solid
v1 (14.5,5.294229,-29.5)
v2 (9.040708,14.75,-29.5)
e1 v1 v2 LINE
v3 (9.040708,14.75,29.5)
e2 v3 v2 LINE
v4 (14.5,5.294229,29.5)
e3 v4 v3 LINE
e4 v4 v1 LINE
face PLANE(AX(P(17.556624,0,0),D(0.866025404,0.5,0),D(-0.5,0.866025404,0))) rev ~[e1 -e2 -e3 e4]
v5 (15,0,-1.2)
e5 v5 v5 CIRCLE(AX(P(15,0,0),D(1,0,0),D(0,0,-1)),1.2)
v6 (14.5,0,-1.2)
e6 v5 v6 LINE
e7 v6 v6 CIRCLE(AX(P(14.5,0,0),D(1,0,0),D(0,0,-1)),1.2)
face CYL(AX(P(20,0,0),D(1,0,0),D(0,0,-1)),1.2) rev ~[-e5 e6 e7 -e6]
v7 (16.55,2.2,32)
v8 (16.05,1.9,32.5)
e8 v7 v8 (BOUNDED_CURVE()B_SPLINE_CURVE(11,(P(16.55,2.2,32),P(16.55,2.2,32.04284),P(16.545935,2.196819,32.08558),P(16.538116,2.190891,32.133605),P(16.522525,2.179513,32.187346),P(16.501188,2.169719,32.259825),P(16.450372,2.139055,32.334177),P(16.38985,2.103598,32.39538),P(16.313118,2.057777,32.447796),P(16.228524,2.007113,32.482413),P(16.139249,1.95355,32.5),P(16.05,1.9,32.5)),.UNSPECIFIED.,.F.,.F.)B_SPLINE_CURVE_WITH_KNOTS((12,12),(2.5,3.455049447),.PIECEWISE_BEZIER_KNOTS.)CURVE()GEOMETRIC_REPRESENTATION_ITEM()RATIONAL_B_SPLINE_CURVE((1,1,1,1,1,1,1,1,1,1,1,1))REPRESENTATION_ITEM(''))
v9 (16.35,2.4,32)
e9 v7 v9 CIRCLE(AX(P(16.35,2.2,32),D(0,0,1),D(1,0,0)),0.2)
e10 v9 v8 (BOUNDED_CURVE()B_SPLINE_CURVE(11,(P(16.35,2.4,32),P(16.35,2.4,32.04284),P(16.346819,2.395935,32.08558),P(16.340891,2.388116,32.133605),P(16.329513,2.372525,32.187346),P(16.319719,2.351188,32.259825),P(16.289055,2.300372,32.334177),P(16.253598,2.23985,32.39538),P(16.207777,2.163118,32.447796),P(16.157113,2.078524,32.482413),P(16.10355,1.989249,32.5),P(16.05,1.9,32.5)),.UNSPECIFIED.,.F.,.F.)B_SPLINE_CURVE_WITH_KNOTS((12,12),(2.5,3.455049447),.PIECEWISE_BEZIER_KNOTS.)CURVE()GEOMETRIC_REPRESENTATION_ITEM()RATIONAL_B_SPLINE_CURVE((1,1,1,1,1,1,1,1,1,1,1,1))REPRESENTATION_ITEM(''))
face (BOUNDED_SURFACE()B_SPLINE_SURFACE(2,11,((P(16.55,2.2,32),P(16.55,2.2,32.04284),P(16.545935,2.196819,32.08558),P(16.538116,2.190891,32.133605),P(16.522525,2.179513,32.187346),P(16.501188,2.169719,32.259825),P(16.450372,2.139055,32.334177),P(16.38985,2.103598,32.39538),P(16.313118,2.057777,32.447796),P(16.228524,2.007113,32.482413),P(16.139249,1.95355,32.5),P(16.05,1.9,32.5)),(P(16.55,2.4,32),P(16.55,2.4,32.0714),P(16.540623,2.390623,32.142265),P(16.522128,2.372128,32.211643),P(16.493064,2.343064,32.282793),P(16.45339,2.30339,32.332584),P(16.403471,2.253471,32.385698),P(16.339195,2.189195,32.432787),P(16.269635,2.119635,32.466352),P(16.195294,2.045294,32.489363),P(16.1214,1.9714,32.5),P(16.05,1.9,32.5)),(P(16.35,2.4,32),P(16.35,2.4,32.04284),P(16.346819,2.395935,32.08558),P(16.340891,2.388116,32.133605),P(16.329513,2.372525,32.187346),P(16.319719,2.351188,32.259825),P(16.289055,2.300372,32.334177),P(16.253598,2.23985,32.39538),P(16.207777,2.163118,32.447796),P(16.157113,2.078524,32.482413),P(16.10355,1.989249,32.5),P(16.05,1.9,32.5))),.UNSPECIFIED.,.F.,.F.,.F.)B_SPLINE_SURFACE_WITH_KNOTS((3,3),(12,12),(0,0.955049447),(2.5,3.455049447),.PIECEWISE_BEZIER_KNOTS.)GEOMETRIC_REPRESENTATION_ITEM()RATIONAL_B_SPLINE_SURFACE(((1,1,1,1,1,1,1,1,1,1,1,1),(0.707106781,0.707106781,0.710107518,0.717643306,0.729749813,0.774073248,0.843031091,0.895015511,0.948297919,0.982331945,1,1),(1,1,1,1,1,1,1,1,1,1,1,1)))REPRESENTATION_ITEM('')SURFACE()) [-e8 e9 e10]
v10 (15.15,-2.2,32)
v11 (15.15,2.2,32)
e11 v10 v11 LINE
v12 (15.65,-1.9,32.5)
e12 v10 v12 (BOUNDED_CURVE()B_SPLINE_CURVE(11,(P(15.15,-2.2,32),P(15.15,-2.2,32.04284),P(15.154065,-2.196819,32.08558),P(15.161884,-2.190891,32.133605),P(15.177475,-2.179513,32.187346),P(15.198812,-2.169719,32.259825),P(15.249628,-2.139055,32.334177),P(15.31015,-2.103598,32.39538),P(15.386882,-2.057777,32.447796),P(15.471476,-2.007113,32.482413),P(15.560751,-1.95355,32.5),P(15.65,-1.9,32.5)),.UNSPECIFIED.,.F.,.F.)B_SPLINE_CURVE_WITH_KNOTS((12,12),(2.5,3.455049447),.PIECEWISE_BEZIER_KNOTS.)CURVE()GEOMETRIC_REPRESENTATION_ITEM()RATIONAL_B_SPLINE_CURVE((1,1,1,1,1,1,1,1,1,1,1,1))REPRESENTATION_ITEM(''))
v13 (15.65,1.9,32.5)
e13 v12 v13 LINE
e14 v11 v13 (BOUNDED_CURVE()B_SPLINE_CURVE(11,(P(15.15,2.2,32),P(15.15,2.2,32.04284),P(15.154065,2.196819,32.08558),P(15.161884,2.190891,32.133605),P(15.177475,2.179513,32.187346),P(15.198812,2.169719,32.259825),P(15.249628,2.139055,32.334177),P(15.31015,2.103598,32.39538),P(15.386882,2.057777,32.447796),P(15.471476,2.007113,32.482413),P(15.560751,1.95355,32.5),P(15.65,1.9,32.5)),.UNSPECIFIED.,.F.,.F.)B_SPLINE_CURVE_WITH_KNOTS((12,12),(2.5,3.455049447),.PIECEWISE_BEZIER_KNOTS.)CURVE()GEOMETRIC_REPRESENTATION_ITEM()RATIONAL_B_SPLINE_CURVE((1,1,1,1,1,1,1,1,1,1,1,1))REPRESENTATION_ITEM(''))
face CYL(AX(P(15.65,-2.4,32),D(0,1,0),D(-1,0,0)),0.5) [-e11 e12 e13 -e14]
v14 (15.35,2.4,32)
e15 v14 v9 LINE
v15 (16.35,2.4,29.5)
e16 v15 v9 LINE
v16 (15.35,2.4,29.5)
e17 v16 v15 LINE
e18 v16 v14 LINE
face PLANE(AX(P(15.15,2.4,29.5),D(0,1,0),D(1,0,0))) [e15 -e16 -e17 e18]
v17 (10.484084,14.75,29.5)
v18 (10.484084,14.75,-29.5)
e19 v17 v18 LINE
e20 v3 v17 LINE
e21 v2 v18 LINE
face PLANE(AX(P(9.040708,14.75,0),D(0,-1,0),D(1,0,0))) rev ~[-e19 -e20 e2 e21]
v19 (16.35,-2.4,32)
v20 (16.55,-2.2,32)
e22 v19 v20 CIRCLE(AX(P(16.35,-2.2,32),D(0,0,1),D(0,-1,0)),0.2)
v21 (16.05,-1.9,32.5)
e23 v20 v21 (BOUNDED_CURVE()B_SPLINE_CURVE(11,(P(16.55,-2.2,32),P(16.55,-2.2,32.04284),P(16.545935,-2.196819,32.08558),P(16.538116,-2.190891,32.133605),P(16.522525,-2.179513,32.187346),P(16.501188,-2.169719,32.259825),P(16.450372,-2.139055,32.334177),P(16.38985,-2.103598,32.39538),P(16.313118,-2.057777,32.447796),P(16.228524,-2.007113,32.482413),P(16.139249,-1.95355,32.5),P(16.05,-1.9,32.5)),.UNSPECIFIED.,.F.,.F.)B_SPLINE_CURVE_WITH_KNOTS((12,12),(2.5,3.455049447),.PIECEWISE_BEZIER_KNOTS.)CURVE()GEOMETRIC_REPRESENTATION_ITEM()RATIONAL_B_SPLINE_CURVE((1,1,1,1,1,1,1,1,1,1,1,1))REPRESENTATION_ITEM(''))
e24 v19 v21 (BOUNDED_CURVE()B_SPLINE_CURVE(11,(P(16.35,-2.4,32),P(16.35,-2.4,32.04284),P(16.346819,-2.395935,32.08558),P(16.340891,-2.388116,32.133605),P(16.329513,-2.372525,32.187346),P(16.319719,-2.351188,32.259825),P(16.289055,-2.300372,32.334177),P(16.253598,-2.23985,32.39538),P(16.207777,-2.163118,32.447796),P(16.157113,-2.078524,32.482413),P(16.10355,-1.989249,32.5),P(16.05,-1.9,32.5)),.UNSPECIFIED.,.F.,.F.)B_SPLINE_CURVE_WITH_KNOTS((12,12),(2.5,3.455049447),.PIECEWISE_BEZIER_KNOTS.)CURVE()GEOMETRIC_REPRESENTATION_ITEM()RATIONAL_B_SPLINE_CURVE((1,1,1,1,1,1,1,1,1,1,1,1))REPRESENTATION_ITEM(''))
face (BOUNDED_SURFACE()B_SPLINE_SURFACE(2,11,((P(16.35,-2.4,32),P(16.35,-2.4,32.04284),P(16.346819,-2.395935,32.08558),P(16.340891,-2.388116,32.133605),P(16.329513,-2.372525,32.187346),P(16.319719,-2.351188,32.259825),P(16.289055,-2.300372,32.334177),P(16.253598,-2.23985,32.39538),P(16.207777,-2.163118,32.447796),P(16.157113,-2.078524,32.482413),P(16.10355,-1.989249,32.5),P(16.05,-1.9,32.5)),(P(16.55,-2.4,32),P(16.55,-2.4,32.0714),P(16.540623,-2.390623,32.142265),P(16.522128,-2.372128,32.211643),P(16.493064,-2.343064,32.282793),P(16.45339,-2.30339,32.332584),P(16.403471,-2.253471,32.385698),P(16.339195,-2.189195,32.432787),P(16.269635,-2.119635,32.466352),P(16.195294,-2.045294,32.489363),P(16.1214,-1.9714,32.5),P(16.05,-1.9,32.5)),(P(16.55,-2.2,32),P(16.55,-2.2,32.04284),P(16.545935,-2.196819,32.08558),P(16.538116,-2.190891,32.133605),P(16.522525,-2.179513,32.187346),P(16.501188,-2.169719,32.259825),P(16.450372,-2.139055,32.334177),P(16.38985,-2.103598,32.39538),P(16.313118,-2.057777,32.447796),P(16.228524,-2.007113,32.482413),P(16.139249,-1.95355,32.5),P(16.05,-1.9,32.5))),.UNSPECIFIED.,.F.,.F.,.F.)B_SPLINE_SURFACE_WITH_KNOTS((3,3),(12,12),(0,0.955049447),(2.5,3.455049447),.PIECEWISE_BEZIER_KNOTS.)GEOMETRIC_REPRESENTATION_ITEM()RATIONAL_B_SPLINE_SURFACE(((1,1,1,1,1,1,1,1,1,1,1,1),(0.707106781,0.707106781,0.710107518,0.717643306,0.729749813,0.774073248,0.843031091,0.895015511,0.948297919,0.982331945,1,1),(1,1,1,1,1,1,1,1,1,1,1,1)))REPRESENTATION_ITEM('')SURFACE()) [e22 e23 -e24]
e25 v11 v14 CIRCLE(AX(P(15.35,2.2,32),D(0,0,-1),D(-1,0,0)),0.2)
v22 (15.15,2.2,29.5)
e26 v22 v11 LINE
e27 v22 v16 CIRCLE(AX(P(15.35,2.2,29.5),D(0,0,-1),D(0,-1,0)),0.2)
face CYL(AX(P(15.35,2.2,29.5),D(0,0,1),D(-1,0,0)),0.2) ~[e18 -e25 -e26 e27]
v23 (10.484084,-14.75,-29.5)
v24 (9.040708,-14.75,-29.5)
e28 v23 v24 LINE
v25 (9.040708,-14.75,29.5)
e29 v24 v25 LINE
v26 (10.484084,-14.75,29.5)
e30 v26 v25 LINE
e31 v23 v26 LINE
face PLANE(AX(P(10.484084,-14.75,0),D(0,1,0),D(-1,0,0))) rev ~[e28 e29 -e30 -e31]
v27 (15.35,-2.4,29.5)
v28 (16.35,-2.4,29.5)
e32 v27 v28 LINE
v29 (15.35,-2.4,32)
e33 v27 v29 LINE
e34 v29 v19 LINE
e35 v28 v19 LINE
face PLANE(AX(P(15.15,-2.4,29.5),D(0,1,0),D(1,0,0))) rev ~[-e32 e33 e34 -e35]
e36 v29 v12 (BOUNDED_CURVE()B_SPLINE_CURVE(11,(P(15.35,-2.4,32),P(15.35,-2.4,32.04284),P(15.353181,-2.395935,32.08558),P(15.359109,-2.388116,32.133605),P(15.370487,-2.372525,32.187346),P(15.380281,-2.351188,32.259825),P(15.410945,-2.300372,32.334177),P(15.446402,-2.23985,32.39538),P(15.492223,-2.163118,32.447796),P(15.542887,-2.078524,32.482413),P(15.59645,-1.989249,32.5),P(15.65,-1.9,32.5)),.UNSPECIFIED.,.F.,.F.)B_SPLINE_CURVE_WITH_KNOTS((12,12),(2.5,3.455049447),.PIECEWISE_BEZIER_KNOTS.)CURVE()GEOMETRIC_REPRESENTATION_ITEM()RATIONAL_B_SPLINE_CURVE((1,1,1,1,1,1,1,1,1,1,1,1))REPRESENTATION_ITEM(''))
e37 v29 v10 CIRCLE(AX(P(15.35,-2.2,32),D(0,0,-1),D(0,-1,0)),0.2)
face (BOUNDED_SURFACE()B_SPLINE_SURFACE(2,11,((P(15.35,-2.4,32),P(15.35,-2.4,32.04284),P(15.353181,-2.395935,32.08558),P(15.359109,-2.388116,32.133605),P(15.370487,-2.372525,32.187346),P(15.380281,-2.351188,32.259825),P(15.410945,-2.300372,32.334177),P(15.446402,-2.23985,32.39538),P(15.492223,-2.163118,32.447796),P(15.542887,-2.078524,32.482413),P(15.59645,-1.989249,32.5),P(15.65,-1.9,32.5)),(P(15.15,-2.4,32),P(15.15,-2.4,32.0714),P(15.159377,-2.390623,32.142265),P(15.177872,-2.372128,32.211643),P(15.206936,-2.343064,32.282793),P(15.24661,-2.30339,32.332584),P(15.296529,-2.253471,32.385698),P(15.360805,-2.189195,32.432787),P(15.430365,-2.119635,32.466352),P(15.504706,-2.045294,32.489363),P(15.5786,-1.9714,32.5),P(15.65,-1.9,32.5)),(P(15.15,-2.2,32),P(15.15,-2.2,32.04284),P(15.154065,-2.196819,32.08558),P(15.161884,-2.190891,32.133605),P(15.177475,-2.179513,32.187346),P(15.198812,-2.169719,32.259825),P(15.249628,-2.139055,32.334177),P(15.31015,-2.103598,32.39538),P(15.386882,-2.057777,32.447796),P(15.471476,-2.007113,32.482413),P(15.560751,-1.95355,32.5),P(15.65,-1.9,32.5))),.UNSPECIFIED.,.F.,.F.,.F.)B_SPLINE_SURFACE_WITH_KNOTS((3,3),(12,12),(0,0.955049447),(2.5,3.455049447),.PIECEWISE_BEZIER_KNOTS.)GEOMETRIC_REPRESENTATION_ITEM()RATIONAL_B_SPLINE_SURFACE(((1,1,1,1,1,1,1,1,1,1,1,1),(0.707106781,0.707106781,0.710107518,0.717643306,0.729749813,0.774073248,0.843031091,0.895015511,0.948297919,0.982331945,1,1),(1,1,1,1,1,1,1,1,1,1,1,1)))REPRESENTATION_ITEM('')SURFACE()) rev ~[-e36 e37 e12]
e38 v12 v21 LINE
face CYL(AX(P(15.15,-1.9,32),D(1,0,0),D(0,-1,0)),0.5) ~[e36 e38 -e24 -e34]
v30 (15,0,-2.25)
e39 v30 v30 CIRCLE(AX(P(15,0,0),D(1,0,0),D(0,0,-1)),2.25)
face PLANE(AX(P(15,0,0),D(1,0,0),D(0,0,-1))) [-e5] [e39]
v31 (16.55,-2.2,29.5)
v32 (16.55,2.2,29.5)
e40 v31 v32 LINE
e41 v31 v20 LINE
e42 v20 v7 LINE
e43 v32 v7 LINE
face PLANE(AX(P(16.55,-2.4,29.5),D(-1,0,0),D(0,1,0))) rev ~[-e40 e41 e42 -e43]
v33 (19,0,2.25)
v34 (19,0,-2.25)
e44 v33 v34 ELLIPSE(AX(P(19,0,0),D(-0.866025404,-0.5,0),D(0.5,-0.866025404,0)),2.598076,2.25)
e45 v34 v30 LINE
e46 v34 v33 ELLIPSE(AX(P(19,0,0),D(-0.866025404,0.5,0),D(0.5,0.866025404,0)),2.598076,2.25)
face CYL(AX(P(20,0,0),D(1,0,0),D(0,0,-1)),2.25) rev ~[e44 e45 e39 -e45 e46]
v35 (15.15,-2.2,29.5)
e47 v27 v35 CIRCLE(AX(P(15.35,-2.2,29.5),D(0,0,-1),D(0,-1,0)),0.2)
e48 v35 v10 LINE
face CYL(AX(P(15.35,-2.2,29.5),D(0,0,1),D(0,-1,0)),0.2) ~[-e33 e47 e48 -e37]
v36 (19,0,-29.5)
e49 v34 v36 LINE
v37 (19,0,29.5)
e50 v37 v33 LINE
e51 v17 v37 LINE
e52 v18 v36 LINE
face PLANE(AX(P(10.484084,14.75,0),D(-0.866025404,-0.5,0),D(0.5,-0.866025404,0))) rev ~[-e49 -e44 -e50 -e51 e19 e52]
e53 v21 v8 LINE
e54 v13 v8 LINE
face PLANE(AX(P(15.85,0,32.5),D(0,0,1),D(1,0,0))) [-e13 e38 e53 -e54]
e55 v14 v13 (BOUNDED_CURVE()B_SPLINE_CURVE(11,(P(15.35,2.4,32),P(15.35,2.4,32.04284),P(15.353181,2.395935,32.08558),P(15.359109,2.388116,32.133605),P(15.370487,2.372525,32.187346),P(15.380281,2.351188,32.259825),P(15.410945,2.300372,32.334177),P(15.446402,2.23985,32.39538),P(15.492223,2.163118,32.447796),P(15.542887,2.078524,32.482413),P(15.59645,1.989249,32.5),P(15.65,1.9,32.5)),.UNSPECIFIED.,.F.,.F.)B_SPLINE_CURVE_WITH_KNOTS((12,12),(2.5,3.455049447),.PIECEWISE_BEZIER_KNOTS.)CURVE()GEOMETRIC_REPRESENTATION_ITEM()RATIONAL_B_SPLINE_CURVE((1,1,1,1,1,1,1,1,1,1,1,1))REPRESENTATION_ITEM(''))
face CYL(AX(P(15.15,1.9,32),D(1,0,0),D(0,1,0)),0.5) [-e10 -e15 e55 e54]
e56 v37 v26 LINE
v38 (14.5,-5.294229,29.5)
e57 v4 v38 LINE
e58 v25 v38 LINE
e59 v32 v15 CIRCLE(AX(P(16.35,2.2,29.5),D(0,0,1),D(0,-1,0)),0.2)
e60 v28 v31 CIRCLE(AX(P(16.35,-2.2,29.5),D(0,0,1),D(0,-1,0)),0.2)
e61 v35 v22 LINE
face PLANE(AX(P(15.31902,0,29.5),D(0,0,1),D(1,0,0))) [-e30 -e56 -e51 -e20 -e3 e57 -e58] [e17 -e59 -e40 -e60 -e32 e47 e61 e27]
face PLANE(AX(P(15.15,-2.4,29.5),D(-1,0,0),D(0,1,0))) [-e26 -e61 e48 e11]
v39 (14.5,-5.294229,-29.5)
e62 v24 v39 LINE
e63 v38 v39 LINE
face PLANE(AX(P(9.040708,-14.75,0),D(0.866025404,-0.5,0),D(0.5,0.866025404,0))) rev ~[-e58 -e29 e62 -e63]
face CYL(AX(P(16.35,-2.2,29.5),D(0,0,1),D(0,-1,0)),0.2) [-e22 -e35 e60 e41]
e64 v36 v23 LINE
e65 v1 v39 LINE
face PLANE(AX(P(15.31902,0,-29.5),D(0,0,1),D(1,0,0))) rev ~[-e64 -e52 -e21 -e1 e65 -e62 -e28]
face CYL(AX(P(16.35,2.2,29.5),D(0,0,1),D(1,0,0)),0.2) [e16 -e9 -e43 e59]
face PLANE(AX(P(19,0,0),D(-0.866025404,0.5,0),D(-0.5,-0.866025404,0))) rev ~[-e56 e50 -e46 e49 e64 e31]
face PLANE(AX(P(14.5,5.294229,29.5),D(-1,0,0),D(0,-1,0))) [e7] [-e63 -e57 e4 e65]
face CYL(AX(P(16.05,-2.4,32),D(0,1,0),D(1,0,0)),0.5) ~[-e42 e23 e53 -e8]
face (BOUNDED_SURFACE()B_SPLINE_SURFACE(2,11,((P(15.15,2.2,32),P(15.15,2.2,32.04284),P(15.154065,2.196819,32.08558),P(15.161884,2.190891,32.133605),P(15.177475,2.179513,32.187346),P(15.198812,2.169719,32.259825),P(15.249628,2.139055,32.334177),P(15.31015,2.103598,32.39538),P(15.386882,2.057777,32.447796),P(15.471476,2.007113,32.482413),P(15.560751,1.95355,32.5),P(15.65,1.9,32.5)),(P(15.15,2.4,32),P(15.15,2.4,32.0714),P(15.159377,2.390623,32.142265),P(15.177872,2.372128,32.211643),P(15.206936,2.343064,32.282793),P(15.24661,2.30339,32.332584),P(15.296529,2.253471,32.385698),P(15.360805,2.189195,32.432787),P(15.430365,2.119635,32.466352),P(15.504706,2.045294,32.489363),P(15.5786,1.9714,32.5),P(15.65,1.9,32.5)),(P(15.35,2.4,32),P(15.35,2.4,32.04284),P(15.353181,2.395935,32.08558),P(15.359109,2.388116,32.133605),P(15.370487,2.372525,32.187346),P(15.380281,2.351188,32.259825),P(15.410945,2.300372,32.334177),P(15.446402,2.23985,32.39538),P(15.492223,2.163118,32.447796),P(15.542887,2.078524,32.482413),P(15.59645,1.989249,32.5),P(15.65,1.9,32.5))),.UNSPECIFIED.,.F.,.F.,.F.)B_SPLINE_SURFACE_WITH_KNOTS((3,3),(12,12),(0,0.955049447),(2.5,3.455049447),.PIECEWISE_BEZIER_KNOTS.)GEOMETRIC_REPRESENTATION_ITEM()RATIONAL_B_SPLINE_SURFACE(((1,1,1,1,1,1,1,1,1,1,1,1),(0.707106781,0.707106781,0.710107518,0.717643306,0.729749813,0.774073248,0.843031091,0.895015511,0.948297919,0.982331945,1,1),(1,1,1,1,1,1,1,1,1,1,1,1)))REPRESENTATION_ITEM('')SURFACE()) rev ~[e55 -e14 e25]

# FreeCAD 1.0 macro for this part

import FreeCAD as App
import Part
import Sketcher
from FreeCAD import Vector
Q = App.Units.Quantity


def edges_at(feature, points):
    """Names of the edges that pass closest to the given points."""
    edges = feature.Shape.Edges
    near = lambda p: min(range(len(edges)), key=lambda i: edges[i].distToShape(Part.Vertex(*p))[0])
    return sorted({f"Edge{near(p) + 1}" for p in points})


def add_polygon(sketch, points):
    """Adds a closed chain of lines whose ends are joined by coincident constraints."""
    first, n = sketch.GeometryCount, len(points)
    for a, b in zip(points, points[1:] + points[:1]):
        sketch.addGeometry(Part.LineSegment(App.Vector(*a, 0), App.Vector(*b, 0)), False)
    for i in range(n):
        sketch.addConstraint(Sketcher.Constraint("Coincident", first + i, 2, first + (i + 1) % n, 1))

doc = App.newDocument("Part")
body = doc.addObject("PartDesign::Body", "Body")

# Sketch on XY plane
sketch1 = body.newObject("Sketcher::SketchObject", "Sketch")
sketch1.AttachmentSupport = (doc.getObject("XY_Plane"), [""])
sketch1.MapMode = "FlatFace"
add_polygon(sketch1, [(9, 14.8), (17.6, 0), (9, -14.8), (10.5, -14.8), (19, 0), (10.5, 14.8)])  # lines 0-5
sketch1.addConstraint([
    Sketcher.Constraint("Horizontal", 2),
    Sketcher.Constraint("Horizontal", 5),
    Sketcher.Constraint("Symmetric", 2, 2, 4, 2, -1),
    Sketcher.Constraint("PointOnObject", 0, 2, -1),
    Sketcher.Constraint("PointOnObject", 3, 2, -1),
    Sketcher.Constraint("Parallel", 1, 3),
    Sketcher.Constraint("Parallel", 0, 4),
    Sketcher.Constraint("Angle", 0, Q("-60 deg")),
    Sketcher.Constraint("DistanceX", -1, 1, 3, 2, 19.0),
    Sketcher.Constraint("DistanceY", 2, 2, 4, 2, 29.5),
    Sketcher.Constraint("DistanceX", 2, 1, 2, 2, 1.443376),
])
pad1 = body.newObject("PartDesign::Pad", "Pad")
pad1.Profile = sketch1
pad1.Length = 59
pad1.Midplane = True

# Sketch on XY plane
sketch2 = body.newObject("Sketcher::SketchObject", "Sketch001")
sketch2.AttachmentSupport = (doc.getObject("XY_Plane"), [""])
sketch2.MapMode = "FlatFace"
sketch2.AttachmentOffset = App.Placement(Vector(0, 0, 29.5), App.Rotation())
add_polygon(sketch2, [(18, 0), (14, 5), (14, -5)])  # lines 0-2
sketch2.addConstraint([
    Sketcher.Constraint("Vertical", 1),
    Sketcher.Constraint("PointOnObject", 2, 2, -1),
    Sketcher.Constraint("Equal", 0, 2),
    Sketcher.Constraint("Angle", 0, Q("120 deg")),
    Sketcher.Constraint("DistanceX", -1, 1, 0, 2, 14.5),
    Sketcher.Constraint("Distance", 0, 6.113249),
])
pad2 = body.newObject("PartDesign::Pad", "Pad001")
pad2.Profile = sketch2
pad2.Length = 59
pad2.Reversed = True

# Sketch on XY plane
sketch3 = body.newObject("Sketcher::SketchObject", "Sketch002")
sketch3.AttachmentSupport = (doc.getObject("XY_Plane"), [""])
sketch3.MapMode = "FlatFace"
sketch3.AttachmentOffset = App.Placement(Vector(0, 0, 29.5), App.Rotation())
add_polygon(sketch3, [(15.2, 2.4), (15.2, -2.4), (16.6, -2.4), (16.6, 2.4)])  # lines 0-3
sketch3.addConstraint([
    Sketcher.Constraint("Vertical", 0),
    Sketcher.Constraint("Horizontal", 1),
    Sketcher.Constraint("Vertical", 2),
    Sketcher.Constraint("Horizontal", 3),
    Sketcher.Constraint("DistanceX", 1, 1, 1, 2, 1.4),
    Sketcher.Constraint("DistanceY", 0, 2, 0, 1, 4.8),
    Sketcher.Constraint("DistanceY", 0, 2, -1, 1, 2.4),
    Sketcher.Constraint("DistanceX", -1, 1, 0, 2, 15.15),
])
pad3 = body.newObject("PartDesign::Pad", "Pad002")
pad3.Profile = sketch3
pad3.Length = 3
doc.recompute()

fillet = body.newObject("PartDesign::Fillet", "Fillet")
fillet.Base = (pad3, edges_at(pad3, [
    (15.15, 0, 32.5),
    (15.85, -2.4, 32.5),
    (16.55, 0, 32.5),
    (15.85, 2.4, 32.5),
]))
fillet.Radius = 0.5

# Sketch on YZ plane
sketch4 = body.newObject("Sketcher::SketchObject", "Sketch003")
sketch4.AttachmentSupport = (doc.getObject("YZ_Plane"), [""])
sketch4.MapMode = "FlatFace"
sketch4.AttachmentOffset = App.Placement(Vector(0, 0, 20), App.Rotation())
sketch4.addGeometry(Part.Circle(Vector(0, 0, 0), Vector(0, 0, 1), 1.2), False)
sketch4.addConstraint([
    Sketcher.Constraint("Coincident", 0, 3, -1, 1),
    Sketcher.Constraint("Diameter", 0, 2.4),
])
pocket1 = body.newObject("PartDesign::Pocket", "Pocket")
pocket1.Profile = sketch4
pocket1.Length = 13

# Sketch on YZ plane
sketch5 = body.newObject("Sketcher::SketchObject", "Sketch004")
sketch5.AttachmentSupport = (doc.getObject("YZ_Plane"), [""])
sketch5.MapMode = "FlatFace"
sketch5.AttachmentOffset = App.Placement(Vector(0, 0, 20), App.Rotation())
sketch5.addGeometry(Part.Circle(Vector(0, 0, 0), Vector(0, 0, 1), 2.2), False)
sketch5.addConstraint([
    Sketcher.Constraint("Coincident", 0, 3, -1, 1),
    Sketcher.Constraint("Diameter", 0, 4.5),
])
pocket2 = body.newObject("PartDesign::Pocket", "Pocket001")
pocket2.Profile = sketch5
pocket2.Length = 5
doc.recompute()

fillet2 = body.newObject("PartDesign::Fillet", "Fillet001")
fillet2.Base = (pocket2, edges_at(pocket2, [
    (15.15, 2.4, 30.75),
    (16.55, 2.4, 30.75),
    (16.55, -2.4, 30.75),
    (15.15, -2.4, 30.75),
    (16.373, -2.223, 32.382),
    (15.327, -2.223, 32.382),
    (16.373, 2.223, 32.382),
    (15.327, 2.223, 32.382),
]))
fillet2.Radius = 0.2

doc.recompute()
